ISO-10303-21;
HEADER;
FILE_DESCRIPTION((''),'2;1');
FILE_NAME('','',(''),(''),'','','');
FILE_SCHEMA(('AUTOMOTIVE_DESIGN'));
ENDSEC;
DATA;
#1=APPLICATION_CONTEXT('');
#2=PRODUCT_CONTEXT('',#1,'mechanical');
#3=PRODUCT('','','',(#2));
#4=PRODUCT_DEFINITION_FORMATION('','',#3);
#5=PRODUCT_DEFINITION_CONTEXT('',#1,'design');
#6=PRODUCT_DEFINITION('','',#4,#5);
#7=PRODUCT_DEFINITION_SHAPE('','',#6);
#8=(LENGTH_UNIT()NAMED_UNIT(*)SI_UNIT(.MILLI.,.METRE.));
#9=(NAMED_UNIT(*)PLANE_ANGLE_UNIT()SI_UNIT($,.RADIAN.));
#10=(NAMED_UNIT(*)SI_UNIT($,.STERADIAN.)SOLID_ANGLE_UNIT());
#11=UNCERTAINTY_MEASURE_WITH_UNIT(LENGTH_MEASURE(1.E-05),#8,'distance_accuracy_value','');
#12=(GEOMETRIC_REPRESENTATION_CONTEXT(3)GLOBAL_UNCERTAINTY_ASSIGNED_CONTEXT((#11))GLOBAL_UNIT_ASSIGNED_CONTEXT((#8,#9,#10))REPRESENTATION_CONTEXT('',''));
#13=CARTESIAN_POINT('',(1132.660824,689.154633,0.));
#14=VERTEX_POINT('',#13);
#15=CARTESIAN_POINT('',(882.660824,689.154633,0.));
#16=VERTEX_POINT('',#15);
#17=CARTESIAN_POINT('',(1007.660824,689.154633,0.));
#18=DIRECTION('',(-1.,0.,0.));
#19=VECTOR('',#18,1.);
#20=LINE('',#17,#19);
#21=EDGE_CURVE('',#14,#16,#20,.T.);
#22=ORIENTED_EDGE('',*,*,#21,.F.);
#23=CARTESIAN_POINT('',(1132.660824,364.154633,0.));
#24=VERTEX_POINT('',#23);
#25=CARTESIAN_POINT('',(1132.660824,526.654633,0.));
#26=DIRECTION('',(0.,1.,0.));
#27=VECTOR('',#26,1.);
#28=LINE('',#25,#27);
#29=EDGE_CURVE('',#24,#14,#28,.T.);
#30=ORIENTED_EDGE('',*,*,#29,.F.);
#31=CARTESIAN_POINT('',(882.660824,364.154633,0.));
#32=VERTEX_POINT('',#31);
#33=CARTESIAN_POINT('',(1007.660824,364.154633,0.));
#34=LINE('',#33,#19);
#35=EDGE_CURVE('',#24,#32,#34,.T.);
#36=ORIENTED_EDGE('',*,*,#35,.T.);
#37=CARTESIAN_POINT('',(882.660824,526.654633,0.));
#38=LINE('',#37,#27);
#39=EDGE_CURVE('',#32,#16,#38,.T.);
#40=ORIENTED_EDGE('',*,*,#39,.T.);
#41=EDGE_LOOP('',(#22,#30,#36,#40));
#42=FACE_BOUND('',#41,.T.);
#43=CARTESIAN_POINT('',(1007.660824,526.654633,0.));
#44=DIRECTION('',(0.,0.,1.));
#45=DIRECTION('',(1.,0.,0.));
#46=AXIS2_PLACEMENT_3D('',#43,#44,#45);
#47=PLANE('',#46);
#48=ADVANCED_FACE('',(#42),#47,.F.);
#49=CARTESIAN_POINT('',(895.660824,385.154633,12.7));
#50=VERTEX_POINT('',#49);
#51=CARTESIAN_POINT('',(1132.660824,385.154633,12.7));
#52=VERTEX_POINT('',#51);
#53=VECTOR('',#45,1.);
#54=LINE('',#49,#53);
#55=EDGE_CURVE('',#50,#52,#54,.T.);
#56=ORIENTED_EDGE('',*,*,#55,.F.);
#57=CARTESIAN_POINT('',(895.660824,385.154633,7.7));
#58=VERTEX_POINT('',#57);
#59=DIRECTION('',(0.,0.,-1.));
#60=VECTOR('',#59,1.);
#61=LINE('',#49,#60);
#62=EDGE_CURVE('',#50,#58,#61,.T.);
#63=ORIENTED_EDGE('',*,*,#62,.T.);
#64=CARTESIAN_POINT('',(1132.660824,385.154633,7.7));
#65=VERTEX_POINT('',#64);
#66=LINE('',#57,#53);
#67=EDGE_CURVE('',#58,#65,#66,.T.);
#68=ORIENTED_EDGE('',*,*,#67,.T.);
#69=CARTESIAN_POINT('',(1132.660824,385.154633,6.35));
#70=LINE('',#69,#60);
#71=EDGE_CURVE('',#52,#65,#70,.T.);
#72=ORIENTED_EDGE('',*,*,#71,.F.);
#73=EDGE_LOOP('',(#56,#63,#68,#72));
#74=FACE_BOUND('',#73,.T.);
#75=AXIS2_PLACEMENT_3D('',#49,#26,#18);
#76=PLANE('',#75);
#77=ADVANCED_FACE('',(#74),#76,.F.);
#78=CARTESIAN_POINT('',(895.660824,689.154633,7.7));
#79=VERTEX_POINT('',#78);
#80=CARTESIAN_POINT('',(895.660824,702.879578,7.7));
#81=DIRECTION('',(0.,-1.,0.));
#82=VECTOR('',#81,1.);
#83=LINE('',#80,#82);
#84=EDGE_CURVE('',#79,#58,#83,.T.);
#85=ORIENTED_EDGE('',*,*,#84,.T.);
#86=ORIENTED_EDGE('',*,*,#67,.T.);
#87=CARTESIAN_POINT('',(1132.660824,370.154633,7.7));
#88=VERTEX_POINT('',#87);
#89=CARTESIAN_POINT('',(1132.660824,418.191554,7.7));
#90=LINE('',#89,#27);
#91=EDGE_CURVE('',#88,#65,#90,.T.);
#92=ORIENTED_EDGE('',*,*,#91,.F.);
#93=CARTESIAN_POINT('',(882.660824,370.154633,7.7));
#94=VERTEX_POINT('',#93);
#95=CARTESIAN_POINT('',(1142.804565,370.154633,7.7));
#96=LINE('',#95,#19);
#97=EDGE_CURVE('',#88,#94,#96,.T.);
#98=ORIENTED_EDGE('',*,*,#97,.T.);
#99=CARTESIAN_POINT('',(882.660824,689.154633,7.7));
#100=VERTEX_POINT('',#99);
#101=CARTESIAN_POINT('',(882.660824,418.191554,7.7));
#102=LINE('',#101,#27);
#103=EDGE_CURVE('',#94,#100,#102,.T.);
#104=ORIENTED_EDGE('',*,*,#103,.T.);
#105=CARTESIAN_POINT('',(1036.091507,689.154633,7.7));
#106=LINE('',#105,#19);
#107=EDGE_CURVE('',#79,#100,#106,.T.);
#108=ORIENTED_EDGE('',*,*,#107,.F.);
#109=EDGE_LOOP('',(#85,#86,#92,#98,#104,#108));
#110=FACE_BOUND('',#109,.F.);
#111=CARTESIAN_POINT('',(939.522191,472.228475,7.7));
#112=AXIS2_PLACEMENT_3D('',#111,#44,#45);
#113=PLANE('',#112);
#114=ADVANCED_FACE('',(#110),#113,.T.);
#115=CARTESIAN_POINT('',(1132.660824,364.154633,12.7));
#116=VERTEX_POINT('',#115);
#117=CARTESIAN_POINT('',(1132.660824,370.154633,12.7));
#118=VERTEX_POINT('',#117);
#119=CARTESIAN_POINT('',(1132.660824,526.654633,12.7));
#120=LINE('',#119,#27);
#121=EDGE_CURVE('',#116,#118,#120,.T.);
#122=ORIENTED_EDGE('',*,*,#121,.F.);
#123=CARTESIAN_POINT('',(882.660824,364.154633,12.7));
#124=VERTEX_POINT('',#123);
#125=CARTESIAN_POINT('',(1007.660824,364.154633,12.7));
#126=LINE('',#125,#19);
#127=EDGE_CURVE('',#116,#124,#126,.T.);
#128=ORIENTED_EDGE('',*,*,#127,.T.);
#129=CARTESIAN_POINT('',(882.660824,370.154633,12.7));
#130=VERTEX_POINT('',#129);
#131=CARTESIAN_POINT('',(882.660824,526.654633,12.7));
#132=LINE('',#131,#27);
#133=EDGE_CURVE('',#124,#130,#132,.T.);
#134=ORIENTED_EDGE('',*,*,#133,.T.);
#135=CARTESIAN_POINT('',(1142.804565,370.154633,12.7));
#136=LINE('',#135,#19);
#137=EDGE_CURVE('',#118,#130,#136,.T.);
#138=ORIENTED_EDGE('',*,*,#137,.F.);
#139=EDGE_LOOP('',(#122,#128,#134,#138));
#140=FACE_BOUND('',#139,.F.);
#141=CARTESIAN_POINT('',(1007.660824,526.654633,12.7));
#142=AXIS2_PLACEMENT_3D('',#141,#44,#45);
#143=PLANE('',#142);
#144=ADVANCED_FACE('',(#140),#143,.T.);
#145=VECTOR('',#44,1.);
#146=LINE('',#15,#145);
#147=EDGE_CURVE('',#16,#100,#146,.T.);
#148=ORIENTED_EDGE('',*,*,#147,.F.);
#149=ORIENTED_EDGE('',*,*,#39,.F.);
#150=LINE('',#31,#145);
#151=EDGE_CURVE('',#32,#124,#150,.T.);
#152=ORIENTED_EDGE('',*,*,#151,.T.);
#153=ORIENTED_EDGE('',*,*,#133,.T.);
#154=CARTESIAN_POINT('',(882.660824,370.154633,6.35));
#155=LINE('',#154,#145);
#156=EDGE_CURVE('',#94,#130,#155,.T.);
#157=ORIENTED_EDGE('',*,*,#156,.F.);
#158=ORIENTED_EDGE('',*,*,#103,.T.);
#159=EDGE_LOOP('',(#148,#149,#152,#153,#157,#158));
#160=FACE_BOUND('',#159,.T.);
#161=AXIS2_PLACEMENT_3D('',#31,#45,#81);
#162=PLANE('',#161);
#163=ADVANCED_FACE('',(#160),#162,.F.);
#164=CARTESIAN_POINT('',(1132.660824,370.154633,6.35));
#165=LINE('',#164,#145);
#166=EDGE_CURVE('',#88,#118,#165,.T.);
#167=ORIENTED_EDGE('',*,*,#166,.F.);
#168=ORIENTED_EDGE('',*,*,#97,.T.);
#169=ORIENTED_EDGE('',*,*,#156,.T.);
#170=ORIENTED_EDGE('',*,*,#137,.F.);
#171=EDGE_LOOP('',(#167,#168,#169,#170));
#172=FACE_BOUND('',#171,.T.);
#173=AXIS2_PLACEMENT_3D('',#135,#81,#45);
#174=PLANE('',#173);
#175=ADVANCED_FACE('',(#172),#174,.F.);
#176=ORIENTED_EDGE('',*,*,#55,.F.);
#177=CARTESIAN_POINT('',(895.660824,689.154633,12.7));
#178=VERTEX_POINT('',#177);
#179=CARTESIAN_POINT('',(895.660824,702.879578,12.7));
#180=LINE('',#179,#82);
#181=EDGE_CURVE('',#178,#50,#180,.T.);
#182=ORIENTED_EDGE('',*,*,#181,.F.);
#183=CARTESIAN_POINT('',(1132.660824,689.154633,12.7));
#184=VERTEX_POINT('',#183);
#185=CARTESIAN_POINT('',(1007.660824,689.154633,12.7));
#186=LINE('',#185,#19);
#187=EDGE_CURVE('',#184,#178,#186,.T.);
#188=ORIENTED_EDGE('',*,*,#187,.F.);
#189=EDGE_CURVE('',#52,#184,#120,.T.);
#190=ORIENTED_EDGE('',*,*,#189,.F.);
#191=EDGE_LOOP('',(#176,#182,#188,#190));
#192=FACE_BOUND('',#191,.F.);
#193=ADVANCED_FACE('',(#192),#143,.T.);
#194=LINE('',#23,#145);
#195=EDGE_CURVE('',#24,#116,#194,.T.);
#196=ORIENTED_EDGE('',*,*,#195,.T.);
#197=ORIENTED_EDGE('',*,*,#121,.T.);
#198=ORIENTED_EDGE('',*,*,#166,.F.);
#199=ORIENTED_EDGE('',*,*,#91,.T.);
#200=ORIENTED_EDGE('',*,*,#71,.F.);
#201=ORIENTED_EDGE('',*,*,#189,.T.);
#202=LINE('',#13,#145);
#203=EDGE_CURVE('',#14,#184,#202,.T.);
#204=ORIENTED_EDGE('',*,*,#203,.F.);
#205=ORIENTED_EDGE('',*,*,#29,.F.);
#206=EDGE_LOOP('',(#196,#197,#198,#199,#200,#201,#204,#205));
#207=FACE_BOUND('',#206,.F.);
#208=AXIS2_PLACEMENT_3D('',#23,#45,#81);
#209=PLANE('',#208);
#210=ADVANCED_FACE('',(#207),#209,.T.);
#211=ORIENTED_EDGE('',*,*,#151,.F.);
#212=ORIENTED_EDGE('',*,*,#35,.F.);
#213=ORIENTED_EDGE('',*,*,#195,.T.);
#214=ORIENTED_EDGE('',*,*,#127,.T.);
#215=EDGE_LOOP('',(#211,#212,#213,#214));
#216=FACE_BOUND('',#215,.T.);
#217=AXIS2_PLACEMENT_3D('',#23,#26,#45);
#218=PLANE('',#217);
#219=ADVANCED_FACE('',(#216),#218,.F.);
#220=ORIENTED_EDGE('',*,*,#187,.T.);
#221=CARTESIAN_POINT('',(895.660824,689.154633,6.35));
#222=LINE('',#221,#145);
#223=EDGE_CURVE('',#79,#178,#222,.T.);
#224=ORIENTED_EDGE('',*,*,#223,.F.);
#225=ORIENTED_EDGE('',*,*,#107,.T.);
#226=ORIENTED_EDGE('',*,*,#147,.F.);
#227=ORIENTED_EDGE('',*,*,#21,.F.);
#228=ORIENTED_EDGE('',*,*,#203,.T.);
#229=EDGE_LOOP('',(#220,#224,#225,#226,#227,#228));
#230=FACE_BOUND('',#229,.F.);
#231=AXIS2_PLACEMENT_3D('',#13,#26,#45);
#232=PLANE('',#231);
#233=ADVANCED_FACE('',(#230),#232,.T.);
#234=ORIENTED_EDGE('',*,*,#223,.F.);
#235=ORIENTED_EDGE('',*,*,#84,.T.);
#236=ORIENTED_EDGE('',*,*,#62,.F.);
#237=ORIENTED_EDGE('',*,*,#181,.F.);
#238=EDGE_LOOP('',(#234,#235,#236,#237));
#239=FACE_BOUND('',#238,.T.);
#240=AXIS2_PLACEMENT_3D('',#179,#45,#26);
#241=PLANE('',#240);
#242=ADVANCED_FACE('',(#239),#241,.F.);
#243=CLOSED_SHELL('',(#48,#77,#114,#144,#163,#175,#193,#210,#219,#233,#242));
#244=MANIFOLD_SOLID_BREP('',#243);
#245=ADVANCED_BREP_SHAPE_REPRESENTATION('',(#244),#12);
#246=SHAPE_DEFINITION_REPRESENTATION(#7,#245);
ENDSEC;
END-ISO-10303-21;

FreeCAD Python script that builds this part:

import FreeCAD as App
import Part
import Sketcher
from FreeCAD import Vector
Q = App.Units.Quantity

doc = App.newDocument("Part")
params = doc.addObject("Spreadsheet::Sheet", "Params")
for row, (alias, value) in enumerate([
    ("sketch1_width", "250 mm"),
    ("sketch1_height", "325 mm"),
    ("pad1_length", "12.7 mm"),
    ("sketch2_height", "15 mm"),
    ("pocket1_length", "5 mm"),
], start=1):
    params.set(f"A{row}", alias)
    params.set(f"B{row}", "=" + value)
    params.setAlias(f"B{row}", alias)

body = doc.addObject("PartDesign::Body", "Body")

# Sketch on XY plane
sketch1 = body.newObject("Sketcher::SketchObject", "Sketch")
sketch1.AttachmentSupport = (doc.getObject("XY_Plane"), [""])
sketch1.MapMode = "FlatFace"
sketch1.addGeometry(Part.LineSegment(Vector(618, 689, 0), Vector(618, 364, 0)), False)
sketch1.addGeometry(Part.LineSegment(Vector(618, 364, 0), Vector(868, 364, 0)), False)
sketch1.addGeometry(Part.LineSegment(Vector(868, 364, 0), Vector(868, 689, 0)), False)
sketch1.addGeometry(Part.LineSegment(Vector(868, 689, 0), Vector(618, 689, 0)), False)
sketch1.addConstraint(Sketcher.Constraint("Coincident", 0, 2, 1, 1))
sketch1.addConstraint(Sketcher.Constraint("Coincident", 1, 2, 2, 1))
sketch1.addConstraint(Sketcher.Constraint("Coincident", 2, 2, 3, 1))
sketch1.addConstraint(Sketcher.Constraint("Coincident", 3, 2, 0, 1))
sketch1.addConstraint(Sketcher.Constraint("Vertical", 0))
sketch1.addConstraint(Sketcher.Constraint("Horizontal", 1))
sketch1.addConstraint(Sketcher.Constraint("Vertical", 2))
sketch1.addConstraint(Sketcher.Constraint("Horizontal", 3))
sketch1.addConstraint(Sketcher.Constraint("DistanceX", 1, 1, 1, 2, Q("250 mm")))
sketch1.addConstraint(Sketcher.Constraint("DistanceY", 0, 2, 0, 1, Q("325 mm")))
sketch1.addConstraint(Sketcher.Constraint("DistanceX", -1, 1, 0, 2, Q("617.936954 mm")))
sketch1.addConstraint(Sketcher.Constraint("DistanceY", -1, 1, 0, 2, Q("364.154633 mm")))
sketch1.setExpression("Constraints[8]", "Params.sketch1_width")
sketch1.setExpression("Constraints[9]", "Params.sketch1_height")
pad1 = body.newObject("PartDesign::Pad", "Pad")
pad1.Profile = sketch1
pad1.setExpression("Length", "Params.pad1_length")

# Sketch on XY plane
sketch2 = body.newObject("Sketcher::SketchObject", "Sketch001")
sketch2.AttachmentSupport = (doc.getObject("XY_Plane"), [""])
sketch2.MapMode = "FlatFace"
sketch2.AttachmentOffset = App.Placement(Vector(0, 0, 12.7), App.Rotation())
sketch2.addGeometry(Part.LineSegment(Vector(855, 703, 0), Vector(855, 385, 0)), False)
sketch2.addGeometry(Part.LineSegment(Vector(855, 385, 0), Vector(608, 385, 0)), False)
sketch2.addGeometry(Part.LineSegment(Vector(608, 385, 0), Vector(608, 370, 0)), False)
sketch2.addGeometry(Part.LineSegment(Vector(608, 370, 0), Vector(886, 370, 0)), False)
sketch2.addGeometry(Part.LineSegment(Vector(886, 370, 0), Vector(886, 703, 0)), False)
sketch2.addGeometry(Part.LineSegment(Vector(886, 703, 0), Vector(855, 703, 0)), False)
sketch2.addConstraint(Sketcher.Constraint("Coincident", 0, 2, 1, 1))
sketch2.addConstraint(Sketcher.Constraint("Coincident", 1, 2, 2, 1))
sketch2.addConstraint(Sketcher.Constraint("Coincident", 2, 2, 3, 1))
sketch2.addConstraint(Sketcher.Constraint("Coincident", 3, 2, 4, 1))
sketch2.addConstraint(Sketcher.Constraint("Coincident", 4, 2, 5, 1))
sketch2.addConstraint(Sketcher.Constraint("Coincident", 5, 2, 0, 1))
sketch2.addConstraint(Sketcher.Constraint("Vertical", 0))
sketch2.addConstraint(Sketcher.Constraint("Horizontal", 1))
sketch2.addConstraint(Sketcher.Constraint("Vertical", 2))
sketch2.addConstraint(Sketcher.Constraint("Horizontal", 3))
sketch2.addConstraint(Sketcher.Constraint("Vertical", 4))
sketch2.addConstraint(Sketcher.Constraint("Horizontal", 5))
sketch2.addConstraint(Sketcher.Constraint("DistanceY", 2, 2, 2, 1, Q("15 mm")))
sketch2.addConstraint(Sketcher.Constraint("DistanceX", 1, 2, 1, 1, Q("247.143741 mm")))
sketch2.addConstraint(Sketcher.Constraint("DistanceX", 3, 1, 3, 2, Q("277.987488 mm")))
sketch2.addConstraint(Sketcher.Constraint("DistanceX", -1, 1, 3, 2, Q("885.780701 mm")))
sketch2.addConstraint(Sketcher.Constraint("DistanceY", 0, 2, 0, 1, Q("317.724945 mm")))
sketch2.addConstraint(Sketcher.Constraint("DistanceY", -1, 1, 4, 2, Q("702.879578 mm")))
sketch2.setExpression("Constraints[12]", "Params.sketch2_height")
pocket1 = body.newObject("PartDesign::Pocket", "Pocket")
pocket1.Profile = sketch2
pocket1.setExpression("Length", "Params.pocket1_length")
body2 = doc.addObject("PartDesign::Body", "Body001")
doc.recompute()

mirroring = doc.addObject("Part::Mirroring", "Mirroring")
mirroring.Source = body
mirroring.Base = Vector(875.298889, 692.274536, 0)
mirroring.Normal = Vector(-1, 0, 0)
body2.BaseFeature = mirroring
doc.recompute()
body.Visibility = False
mirroring.Visibility = False

doc.recompute()
